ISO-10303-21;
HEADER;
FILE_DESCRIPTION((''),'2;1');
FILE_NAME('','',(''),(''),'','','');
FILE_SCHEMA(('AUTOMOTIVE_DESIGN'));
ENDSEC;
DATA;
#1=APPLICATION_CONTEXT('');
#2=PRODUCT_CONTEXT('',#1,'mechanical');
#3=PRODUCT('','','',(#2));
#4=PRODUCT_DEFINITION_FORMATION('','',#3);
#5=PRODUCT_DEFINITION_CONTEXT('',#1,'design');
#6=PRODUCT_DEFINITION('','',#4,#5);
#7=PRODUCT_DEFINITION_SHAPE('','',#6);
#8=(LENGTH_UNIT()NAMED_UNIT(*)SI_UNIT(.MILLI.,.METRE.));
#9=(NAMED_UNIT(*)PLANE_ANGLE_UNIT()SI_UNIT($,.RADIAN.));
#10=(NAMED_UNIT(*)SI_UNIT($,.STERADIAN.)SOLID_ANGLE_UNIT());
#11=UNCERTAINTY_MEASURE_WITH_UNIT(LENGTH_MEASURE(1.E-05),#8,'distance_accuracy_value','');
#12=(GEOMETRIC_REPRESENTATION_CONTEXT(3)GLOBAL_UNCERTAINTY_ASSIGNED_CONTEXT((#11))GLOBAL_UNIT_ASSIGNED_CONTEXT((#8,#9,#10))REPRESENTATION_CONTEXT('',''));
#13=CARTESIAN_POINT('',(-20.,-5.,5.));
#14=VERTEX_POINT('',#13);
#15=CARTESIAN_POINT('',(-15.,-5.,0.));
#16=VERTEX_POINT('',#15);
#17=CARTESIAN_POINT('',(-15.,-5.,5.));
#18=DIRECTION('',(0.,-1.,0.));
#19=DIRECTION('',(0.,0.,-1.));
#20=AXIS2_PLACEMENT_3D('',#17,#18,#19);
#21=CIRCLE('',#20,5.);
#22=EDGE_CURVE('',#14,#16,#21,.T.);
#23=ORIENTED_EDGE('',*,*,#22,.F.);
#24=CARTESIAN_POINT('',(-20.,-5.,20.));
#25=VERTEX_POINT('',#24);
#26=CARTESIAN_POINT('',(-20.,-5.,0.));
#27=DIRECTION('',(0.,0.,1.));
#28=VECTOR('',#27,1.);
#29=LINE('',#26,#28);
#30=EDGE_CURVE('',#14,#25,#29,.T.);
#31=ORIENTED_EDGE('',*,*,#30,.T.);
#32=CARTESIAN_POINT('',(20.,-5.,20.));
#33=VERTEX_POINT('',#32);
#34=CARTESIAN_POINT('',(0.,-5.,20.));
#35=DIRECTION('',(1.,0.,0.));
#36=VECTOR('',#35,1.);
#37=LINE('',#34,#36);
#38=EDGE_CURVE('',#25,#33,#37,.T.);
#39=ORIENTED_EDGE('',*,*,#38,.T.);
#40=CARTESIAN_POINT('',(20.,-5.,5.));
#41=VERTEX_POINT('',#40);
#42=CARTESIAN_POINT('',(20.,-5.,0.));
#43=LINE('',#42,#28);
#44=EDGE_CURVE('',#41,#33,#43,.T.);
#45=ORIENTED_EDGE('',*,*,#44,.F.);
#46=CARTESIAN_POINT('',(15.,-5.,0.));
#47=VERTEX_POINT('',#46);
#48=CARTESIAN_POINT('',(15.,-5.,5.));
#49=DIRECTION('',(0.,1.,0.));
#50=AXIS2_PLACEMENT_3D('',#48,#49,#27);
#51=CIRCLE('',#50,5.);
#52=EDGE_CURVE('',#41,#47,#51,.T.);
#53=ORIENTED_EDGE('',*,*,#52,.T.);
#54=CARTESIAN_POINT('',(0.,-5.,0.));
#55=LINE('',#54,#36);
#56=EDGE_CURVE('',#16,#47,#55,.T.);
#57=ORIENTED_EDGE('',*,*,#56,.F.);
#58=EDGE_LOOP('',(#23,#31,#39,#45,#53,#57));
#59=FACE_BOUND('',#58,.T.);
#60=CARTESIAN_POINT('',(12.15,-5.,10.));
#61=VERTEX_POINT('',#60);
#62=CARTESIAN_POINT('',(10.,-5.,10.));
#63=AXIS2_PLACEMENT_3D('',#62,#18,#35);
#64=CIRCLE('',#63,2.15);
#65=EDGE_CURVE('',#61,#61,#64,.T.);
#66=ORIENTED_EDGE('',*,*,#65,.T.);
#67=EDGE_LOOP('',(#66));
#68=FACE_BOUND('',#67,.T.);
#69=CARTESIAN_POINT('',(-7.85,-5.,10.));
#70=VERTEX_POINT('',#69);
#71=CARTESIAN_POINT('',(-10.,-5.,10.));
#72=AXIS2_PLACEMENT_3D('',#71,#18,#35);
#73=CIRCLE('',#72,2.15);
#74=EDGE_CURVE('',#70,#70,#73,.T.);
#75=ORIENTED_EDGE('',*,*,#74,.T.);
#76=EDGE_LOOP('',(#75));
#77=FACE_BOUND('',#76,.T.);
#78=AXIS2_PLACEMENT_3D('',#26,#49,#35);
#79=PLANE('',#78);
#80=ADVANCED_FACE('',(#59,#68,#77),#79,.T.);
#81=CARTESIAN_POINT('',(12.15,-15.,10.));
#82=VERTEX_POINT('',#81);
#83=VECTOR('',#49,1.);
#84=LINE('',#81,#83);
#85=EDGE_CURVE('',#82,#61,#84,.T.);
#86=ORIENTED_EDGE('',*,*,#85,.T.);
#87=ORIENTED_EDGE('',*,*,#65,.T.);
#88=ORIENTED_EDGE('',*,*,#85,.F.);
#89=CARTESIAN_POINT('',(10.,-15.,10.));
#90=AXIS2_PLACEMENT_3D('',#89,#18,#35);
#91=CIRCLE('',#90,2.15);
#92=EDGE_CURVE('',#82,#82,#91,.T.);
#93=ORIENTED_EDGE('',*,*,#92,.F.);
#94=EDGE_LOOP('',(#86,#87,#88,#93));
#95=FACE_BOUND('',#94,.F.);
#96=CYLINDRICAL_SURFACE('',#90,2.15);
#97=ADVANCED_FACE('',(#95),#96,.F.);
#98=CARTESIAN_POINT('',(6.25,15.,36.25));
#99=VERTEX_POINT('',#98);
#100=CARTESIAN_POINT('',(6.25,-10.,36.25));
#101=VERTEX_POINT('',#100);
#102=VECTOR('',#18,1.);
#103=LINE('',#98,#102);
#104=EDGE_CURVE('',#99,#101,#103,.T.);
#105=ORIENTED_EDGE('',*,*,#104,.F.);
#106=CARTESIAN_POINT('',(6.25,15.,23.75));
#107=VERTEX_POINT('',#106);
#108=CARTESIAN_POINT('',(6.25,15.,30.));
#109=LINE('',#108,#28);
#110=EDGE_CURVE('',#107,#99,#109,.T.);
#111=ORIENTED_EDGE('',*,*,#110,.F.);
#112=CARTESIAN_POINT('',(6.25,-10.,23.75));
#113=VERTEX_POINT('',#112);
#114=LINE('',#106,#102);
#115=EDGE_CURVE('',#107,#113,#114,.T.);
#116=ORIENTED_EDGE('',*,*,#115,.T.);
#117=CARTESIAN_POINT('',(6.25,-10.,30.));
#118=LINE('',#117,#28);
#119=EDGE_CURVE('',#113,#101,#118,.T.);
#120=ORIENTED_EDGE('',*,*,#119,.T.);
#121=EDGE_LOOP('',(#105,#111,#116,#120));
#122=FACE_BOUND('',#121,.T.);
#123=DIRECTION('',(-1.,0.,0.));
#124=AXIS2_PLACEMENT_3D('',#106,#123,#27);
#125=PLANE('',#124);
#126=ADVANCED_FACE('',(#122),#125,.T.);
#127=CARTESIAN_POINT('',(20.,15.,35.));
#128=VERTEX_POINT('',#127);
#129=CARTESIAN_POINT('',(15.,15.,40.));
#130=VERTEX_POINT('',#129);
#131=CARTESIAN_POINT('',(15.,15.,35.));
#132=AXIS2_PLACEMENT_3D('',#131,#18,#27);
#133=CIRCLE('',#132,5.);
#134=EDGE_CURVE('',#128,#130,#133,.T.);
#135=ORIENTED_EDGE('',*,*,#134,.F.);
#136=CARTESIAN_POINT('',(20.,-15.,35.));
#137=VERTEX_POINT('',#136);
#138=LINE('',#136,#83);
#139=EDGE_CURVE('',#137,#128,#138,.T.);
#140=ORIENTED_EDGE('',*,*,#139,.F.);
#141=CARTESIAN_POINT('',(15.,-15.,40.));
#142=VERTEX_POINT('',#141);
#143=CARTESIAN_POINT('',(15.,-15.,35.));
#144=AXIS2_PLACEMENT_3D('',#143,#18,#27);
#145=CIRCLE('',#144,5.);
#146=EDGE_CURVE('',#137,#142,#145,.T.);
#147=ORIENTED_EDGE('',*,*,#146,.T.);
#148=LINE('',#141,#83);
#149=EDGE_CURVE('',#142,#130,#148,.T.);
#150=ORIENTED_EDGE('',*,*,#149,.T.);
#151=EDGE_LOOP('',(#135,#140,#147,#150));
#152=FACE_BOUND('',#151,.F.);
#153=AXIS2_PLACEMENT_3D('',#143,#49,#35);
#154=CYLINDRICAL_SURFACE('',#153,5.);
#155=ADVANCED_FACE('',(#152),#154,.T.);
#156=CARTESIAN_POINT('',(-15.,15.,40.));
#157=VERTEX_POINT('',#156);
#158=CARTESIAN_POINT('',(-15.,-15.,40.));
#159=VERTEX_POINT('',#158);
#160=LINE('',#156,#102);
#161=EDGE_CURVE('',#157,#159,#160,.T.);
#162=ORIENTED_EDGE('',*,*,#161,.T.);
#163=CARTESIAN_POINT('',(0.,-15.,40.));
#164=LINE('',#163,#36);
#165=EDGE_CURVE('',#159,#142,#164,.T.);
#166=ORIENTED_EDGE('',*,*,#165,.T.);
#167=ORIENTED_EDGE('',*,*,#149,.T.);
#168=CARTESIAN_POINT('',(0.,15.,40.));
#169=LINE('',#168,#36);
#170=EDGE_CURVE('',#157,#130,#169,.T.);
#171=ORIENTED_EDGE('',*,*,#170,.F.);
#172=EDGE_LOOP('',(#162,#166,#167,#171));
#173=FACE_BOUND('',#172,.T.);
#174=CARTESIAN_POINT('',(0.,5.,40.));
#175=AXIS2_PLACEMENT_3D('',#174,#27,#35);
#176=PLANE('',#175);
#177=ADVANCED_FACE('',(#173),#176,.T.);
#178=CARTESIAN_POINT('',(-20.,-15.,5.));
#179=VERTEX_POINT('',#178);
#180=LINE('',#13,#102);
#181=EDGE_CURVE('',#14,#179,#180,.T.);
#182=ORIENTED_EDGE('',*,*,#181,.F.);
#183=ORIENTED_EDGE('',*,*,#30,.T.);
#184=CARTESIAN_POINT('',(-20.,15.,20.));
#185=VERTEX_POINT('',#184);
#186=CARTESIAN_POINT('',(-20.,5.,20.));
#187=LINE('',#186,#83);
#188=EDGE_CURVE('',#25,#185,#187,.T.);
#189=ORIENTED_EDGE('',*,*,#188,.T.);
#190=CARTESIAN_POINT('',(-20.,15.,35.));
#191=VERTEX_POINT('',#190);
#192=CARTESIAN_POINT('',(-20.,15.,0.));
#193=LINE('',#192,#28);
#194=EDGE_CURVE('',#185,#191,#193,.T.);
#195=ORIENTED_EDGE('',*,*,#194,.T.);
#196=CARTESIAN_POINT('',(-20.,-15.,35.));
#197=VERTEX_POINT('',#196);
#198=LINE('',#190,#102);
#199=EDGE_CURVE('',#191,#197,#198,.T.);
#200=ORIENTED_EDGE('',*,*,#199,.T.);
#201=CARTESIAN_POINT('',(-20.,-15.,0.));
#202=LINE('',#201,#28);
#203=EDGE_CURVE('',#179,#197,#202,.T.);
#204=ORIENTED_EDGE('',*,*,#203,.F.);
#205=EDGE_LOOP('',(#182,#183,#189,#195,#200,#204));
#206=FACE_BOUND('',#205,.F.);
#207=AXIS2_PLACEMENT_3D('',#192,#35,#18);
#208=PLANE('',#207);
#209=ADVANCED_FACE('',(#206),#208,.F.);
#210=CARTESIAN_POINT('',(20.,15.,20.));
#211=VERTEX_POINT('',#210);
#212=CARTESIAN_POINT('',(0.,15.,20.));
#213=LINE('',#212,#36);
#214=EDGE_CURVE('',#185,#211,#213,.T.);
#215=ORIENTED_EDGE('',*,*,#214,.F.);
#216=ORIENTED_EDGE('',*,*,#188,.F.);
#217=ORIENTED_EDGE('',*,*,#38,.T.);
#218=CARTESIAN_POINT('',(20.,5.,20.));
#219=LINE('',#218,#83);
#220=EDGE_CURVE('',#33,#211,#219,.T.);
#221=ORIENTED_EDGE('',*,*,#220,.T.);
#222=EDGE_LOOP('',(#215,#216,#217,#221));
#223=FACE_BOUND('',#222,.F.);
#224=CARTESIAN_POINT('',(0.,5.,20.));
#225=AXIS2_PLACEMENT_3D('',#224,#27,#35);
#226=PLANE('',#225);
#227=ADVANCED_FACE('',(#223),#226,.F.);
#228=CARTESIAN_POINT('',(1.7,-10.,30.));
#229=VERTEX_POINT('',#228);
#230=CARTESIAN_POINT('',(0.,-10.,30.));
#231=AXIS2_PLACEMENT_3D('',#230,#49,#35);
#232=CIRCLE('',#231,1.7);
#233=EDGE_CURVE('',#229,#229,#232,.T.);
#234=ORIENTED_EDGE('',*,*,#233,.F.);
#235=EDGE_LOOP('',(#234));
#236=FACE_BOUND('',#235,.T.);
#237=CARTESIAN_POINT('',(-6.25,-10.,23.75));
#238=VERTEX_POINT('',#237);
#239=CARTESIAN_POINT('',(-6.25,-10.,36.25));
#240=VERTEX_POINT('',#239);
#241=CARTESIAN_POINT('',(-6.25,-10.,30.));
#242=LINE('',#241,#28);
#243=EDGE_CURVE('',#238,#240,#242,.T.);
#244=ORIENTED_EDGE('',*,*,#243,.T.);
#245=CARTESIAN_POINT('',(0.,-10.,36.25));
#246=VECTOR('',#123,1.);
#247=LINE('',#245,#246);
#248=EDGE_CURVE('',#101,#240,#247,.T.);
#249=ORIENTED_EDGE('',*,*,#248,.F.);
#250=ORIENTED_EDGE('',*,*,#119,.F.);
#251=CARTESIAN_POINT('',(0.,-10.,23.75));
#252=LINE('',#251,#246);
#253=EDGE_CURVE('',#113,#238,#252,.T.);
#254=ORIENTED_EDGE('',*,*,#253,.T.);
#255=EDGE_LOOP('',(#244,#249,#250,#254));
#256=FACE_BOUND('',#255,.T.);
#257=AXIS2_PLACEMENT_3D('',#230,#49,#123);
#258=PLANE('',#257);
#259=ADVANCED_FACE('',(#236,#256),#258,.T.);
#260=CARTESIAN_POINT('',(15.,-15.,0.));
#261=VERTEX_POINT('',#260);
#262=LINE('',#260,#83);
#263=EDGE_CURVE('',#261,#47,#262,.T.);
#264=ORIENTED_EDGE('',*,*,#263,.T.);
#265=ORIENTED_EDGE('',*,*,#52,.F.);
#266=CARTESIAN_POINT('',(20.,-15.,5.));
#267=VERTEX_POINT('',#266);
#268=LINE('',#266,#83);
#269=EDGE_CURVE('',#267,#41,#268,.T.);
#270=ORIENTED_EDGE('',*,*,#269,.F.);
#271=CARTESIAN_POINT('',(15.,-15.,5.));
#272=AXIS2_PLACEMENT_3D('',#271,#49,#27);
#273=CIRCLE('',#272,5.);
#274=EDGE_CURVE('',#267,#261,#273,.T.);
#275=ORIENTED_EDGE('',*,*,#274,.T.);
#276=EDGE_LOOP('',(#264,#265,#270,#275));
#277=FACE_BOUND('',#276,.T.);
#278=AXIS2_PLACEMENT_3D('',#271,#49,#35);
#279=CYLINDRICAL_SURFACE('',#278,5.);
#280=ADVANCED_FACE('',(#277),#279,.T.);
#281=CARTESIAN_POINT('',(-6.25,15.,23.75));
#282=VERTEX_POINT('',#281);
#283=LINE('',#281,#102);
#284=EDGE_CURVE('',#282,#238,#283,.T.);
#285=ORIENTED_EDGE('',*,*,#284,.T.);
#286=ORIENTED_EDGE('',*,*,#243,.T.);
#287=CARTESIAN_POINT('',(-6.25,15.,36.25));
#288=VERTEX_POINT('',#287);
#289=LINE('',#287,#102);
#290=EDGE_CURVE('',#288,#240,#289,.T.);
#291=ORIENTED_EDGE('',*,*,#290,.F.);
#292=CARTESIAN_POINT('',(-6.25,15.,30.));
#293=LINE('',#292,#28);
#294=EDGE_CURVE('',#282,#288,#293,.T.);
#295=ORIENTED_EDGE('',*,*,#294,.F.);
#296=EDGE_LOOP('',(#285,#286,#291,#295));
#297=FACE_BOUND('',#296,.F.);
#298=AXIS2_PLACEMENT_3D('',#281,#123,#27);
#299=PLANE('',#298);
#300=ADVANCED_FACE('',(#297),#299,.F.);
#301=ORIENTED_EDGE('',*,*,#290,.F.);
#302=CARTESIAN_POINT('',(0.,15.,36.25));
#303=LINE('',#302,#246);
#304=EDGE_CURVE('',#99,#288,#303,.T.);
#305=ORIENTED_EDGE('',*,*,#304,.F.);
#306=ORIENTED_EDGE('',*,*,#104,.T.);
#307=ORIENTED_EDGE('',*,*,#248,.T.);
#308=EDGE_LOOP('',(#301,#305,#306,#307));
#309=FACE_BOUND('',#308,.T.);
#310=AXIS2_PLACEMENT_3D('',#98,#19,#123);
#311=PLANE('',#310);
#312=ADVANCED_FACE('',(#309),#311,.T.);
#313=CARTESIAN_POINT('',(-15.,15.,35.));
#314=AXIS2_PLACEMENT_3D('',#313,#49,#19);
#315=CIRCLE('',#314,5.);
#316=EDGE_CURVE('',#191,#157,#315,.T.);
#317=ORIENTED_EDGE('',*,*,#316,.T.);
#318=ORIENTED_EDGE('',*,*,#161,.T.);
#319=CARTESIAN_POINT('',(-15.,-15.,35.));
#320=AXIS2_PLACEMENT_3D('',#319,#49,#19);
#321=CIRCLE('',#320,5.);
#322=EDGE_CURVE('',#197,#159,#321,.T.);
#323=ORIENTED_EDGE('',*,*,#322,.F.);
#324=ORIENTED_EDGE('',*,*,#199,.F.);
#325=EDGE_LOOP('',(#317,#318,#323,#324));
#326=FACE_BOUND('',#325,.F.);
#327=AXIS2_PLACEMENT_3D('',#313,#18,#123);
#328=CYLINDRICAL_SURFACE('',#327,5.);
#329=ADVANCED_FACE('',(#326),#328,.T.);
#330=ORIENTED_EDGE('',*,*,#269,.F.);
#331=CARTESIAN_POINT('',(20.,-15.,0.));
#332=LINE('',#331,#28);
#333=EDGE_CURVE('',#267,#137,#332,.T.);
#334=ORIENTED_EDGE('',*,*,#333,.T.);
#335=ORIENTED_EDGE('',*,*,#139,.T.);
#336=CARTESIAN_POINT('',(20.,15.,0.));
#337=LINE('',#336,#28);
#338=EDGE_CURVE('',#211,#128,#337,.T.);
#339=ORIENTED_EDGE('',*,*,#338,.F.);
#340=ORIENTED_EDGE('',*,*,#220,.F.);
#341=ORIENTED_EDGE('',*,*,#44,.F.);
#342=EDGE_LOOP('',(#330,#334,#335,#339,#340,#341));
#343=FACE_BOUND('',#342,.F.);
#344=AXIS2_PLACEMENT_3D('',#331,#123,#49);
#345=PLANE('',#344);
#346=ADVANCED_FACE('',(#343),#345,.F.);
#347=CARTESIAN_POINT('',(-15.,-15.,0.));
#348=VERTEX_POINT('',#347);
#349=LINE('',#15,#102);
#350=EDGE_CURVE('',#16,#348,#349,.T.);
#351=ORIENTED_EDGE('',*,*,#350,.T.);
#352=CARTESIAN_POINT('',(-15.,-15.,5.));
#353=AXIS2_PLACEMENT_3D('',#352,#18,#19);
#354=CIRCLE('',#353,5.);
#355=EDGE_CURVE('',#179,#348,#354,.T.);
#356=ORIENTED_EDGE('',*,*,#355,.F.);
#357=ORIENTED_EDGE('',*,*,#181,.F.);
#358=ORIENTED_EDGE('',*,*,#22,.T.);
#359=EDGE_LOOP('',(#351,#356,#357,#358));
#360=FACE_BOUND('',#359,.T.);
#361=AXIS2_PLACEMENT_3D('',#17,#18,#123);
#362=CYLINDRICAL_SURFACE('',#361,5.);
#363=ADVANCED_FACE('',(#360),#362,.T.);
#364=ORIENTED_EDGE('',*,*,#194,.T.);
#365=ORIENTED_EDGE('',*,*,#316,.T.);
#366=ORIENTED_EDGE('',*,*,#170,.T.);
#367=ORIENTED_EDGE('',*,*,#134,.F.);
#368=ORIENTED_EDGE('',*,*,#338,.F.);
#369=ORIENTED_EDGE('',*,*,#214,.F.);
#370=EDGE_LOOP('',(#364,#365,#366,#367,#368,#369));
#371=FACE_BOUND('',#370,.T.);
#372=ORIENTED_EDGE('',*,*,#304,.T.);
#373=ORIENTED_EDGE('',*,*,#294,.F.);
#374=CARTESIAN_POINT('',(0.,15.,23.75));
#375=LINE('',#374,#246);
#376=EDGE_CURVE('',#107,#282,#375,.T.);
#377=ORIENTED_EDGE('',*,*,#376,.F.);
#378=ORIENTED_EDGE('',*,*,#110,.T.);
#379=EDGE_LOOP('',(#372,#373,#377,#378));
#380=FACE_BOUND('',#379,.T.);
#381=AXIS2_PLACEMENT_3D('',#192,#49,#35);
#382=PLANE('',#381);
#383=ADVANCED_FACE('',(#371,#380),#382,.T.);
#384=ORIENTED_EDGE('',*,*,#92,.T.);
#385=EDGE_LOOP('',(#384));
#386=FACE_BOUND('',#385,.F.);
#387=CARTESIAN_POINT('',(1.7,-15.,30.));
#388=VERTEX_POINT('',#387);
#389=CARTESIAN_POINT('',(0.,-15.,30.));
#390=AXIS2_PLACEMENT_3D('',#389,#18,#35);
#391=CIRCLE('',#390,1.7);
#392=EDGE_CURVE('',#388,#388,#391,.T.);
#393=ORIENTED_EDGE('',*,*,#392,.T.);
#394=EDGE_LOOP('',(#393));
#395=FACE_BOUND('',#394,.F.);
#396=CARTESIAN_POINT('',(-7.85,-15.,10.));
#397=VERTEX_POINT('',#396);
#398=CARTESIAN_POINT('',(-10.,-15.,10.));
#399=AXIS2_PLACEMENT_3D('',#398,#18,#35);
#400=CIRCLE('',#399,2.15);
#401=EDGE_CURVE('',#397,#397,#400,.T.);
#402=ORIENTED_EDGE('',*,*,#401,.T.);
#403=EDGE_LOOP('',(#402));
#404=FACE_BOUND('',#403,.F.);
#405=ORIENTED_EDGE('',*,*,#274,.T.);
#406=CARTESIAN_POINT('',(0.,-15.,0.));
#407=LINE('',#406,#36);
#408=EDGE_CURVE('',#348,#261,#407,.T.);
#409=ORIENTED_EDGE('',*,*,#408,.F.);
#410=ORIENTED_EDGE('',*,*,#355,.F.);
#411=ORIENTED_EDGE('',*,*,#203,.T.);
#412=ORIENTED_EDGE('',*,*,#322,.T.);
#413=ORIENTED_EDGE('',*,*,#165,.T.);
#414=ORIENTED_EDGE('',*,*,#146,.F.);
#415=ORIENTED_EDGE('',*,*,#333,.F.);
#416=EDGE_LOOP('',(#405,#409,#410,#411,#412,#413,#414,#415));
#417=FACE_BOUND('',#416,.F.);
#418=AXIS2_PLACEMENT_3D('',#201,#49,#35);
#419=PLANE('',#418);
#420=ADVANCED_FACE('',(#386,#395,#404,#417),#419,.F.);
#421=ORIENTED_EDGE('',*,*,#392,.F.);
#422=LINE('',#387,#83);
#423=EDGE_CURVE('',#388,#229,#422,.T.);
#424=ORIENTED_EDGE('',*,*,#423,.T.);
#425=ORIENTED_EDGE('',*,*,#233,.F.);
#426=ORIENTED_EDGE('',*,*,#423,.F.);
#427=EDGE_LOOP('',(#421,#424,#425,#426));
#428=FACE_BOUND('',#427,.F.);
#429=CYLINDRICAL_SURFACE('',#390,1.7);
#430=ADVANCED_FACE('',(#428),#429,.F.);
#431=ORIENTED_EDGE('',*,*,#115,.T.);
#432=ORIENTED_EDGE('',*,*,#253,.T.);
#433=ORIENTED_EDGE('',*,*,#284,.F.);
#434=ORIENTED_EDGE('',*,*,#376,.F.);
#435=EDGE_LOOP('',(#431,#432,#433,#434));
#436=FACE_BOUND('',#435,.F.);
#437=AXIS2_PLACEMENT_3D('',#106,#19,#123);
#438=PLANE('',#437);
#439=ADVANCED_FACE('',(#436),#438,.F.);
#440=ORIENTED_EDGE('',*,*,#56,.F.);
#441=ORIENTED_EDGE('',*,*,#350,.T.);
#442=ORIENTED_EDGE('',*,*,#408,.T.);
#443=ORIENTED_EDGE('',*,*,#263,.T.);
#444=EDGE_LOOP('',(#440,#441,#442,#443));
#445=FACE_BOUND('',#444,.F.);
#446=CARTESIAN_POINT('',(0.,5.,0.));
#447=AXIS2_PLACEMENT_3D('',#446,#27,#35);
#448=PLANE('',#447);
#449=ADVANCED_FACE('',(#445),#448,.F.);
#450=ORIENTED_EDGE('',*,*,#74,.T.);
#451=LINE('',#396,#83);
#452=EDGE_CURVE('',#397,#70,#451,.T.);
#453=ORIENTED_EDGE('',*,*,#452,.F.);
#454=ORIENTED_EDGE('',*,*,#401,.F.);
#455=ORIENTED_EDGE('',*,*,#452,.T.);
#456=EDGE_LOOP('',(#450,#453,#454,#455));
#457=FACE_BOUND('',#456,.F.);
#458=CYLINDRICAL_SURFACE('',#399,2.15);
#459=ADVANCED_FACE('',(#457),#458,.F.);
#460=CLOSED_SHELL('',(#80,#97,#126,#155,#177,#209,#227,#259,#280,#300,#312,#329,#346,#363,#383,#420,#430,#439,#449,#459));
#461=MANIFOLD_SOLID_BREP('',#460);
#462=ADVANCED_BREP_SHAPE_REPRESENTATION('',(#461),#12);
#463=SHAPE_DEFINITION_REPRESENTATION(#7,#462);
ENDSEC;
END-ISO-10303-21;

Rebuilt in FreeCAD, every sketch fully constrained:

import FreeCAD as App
import Part
import Sketcher
from FreeCAD import Vector
Q = App.Units.Quantity


def edges_at(feature, points):
    """Names of the edges that pass closest to the given points."""
    edges = feature.Shape.Edges
    near = lambda p: min(range(len(edges)), key=lambda i: edges[i].distToShape(Part.Vertex(*p))[0])
    return sorted({f"Edge{near(p) + 1}" for p in points})


def add_polygon(sketch, points):
    """Adds a closed chain of lines whose ends are joined by coincident constraints."""
    first, n = sketch.GeometryCount, len(points)
    for a, b in zip(points, points[1:] + points[:1]):
        sketch.addGeometry(Part.LineSegment(App.Vector(*a, 0), App.Vector(*b, 0)), False)
    for i in range(n):
        sketch.addConstraint(Sketcher.Constraint("Coincident", first + i, 2, first + (i + 1) % n, 1))

doc = App.newDocument("Part")
body = doc.addObject("PartDesign::Body", "Body")

# Sketch on XY plane
sketch1 = body.newObject("Sketcher::SketchObject", "Sketch")
sketch1.AttachmentSupport = (doc.getObject("XY_Plane"), [""])
sketch1.MapMode = "FlatFace"
add_polygon(sketch1, [(-20, 15), (-20, -15), (20, -15), (20, 15)])  # lines 0-3
sketch1.addConstraint(Sketcher.Constraint("Vertical", 0))
sketch1.addConstraint(Sketcher.Constraint("Horizontal", 1))
sketch1.addConstraint(Sketcher.Constraint("Vertical", 2))
sketch1.addConstraint(Sketcher.Constraint("Horizontal", 3))
sketch1.addConstraint(Sketcher.Constraint("Symmetric", 0, 2, 2, 2, -1, 1))
sketch1.addConstraint(Sketcher.Constraint("DistanceX", 1, 1, 1, 2, Q("40 mm")))
sketch1.addConstraint(Sketcher.Constraint("DistanceY", 0, 2, 0, 1, Q("30 mm")))
pad1 = body.newObject("PartDesign::Pad", "Pad")
pad1.Profile = sketch1
pad1.Length = 40

# Sketch on XY plane
sketch2 = body.newObject("Sketcher::SketchObject", "Sketch001")
sketch2.AttachmentSupport = (doc.getObject("XY_Plane"), [""])
sketch2.MapMode = "FlatFace"
add_polygon(sketch2, [(-20, 15), (-20, -5), (20, -5), (20, 15)])  # lines 0-3
sketch2.addConstraint(Sketcher.Constraint("Vertical", 0))
sketch2.addConstraint(Sketcher.Constraint("Horizontal", 1))
sketch2.addConstraint(Sketcher.Constraint("Vertical", 2))
sketch2.addConstraint(Sketcher.Constraint("Horizontal", 3))
sketch2.addConstraint(Sketcher.Constraint("DistanceX", 1, 1, 1, 2, Q("40 mm")))
sketch2.addConstraint(Sketcher.Constraint("DistanceY", 0, 2, 0, 1, Q("20 mm")))
sketch2.addConstraint(Sketcher.Constraint("DistanceX", 0, 2, -1, 1, Q("20 mm")))
sketch2.addConstraint(Sketcher.Constraint("DistanceY", 0, 2, -1, 1, Q("5 mm")))
pocket1 = body.newObject("PartDesign::Pocket", "Pocket")
pocket1.Profile = sketch2
pocket1.Length = 20
pocket1.Reversed = True

# Sketch on XZ plane
sketch3 = body.newObject("Sketcher::SketchObject", "Sketch002")
sketch3.AttachmentSupport = (doc.getObject("XZ_Plane"), [""])
sketch3.MapMode = "FlatFace"
sketch3.AttachmentOffset = App.Placement(Vector(0, 0, 15), App.Rotation())
sketch3.addGeometry(Part.Circle(Vector(-10, 10, 0), Vector(0, 0, 1), 2.1), False)
sketch3.addGeometry(Part.Circle(Vector(10, 10, 0), Vector(0, 0, 1), 2.1), False)
sketch3.addGeometry(Part.Circle(Vector(0, 30, 0), Vector(0, 0, 1), 1.7), False)
sketch3.addConstraint(Sketcher.Constraint("Equal", 0, 1))
sketch3.addConstraint(Sketcher.Constraint("Symmetric", 0, 3, 1, 3, -2))
sketch3.addConstraint(Sketcher.Constraint("PointOnObject", 2, 3, -2))
sketch3.addConstraint(Sketcher.Constraint("Diameter", 0, Q("4.3 mm")))
sketch3.addConstraint(Sketcher.Constraint("Diameter", 2, Q("3.4 mm")))
sketch3.addConstraint(Sketcher.Constraint("DistanceX", 0, 3, -1, 1, Q("10 mm")))
sketch3.addConstraint(Sketcher.Constraint("DistanceY", -1, 1, 0, 3, Q("10 mm")))
sketch3.addConstraint(Sketcher.Constraint("DistanceY", -1, 1, 2, 3, Q("30 mm")))
pocket2 = body.newObject("PartDesign::Pocket", "Pocket001")
pocket2.Profile = sketch3
pocket2.Length = 40

# Sketch on XZ plane
sketch4 = body.newObject("Sketcher::SketchObject", "Sketch003")
sketch4.AttachmentSupport = (doc.getObject("XZ_Plane"), [""])
sketch4.MapMode = "FlatFace"
sketch4.AttachmentOffset = App.Placement(Vector(0, 0, -15), App.Rotation())
add_polygon(sketch4, [(6.2, 36.2), (6.2, 23.8), (-6.2, 23.8), (-6.2, 36.2)])  # lines 0-3
sketch4.addGeometry(Part.Circle(Vector(0, 30, 0), Vector(0, 0, 1), 1.7), False)  # 4
sketch4.addConstraint(Sketcher.Constraint("Vertical", 0))
sketch4.addConstraint(Sketcher.Constraint("Horizontal", 1))
sketch4.addConstraint(Sketcher.Constraint("Vertical", 2))
sketch4.addConstraint(Sketcher.Constraint("Horizontal", 3))
sketch4.addConstraint(Sketcher.Constraint("PointOnObject", 4, 3, -2))
sketch4.addConstraint(Sketcher.Constraint("Equal", 3, 0))
sketch4.addConstraint(Sketcher.Constraint("Diameter", 4, Q("3.4 mm")))
sketch4.addConstraint(Sketcher.Constraint("DistanceX", 1, 2, 1, 1, Q("12.5 mm")))
sketch4.addConstraint(Sketcher.Constraint("DistanceY", -1, 1, 4, 3, Q("30 mm")))
sketch4.addConstraint(Sketcher.Constraint("DistanceX", -1, 1, 0, 2, Q("6.25 mm")))
sketch4.addConstraint(Sketcher.Constraint("DistanceY", -1, 1, 0, 2, Q("23.75 mm")))
pocket3 = body.newObject("PartDesign::Pocket", "Pocket002")
pocket3.Profile = sketch4
pocket3.Length = 25
pocket3.Reversed = True
doc.recompute()

fillet = body.newObject("PartDesign::Fillet", "Fillet")
fillet.Base = (pocket3, edges_at(pocket3, [
    (-20, -10, 0),
    (20, -10, 0),
    (-20, 0, 40),
    (20, 0, 40),
]))
fillet.Radius = 5

doc.recompute()
